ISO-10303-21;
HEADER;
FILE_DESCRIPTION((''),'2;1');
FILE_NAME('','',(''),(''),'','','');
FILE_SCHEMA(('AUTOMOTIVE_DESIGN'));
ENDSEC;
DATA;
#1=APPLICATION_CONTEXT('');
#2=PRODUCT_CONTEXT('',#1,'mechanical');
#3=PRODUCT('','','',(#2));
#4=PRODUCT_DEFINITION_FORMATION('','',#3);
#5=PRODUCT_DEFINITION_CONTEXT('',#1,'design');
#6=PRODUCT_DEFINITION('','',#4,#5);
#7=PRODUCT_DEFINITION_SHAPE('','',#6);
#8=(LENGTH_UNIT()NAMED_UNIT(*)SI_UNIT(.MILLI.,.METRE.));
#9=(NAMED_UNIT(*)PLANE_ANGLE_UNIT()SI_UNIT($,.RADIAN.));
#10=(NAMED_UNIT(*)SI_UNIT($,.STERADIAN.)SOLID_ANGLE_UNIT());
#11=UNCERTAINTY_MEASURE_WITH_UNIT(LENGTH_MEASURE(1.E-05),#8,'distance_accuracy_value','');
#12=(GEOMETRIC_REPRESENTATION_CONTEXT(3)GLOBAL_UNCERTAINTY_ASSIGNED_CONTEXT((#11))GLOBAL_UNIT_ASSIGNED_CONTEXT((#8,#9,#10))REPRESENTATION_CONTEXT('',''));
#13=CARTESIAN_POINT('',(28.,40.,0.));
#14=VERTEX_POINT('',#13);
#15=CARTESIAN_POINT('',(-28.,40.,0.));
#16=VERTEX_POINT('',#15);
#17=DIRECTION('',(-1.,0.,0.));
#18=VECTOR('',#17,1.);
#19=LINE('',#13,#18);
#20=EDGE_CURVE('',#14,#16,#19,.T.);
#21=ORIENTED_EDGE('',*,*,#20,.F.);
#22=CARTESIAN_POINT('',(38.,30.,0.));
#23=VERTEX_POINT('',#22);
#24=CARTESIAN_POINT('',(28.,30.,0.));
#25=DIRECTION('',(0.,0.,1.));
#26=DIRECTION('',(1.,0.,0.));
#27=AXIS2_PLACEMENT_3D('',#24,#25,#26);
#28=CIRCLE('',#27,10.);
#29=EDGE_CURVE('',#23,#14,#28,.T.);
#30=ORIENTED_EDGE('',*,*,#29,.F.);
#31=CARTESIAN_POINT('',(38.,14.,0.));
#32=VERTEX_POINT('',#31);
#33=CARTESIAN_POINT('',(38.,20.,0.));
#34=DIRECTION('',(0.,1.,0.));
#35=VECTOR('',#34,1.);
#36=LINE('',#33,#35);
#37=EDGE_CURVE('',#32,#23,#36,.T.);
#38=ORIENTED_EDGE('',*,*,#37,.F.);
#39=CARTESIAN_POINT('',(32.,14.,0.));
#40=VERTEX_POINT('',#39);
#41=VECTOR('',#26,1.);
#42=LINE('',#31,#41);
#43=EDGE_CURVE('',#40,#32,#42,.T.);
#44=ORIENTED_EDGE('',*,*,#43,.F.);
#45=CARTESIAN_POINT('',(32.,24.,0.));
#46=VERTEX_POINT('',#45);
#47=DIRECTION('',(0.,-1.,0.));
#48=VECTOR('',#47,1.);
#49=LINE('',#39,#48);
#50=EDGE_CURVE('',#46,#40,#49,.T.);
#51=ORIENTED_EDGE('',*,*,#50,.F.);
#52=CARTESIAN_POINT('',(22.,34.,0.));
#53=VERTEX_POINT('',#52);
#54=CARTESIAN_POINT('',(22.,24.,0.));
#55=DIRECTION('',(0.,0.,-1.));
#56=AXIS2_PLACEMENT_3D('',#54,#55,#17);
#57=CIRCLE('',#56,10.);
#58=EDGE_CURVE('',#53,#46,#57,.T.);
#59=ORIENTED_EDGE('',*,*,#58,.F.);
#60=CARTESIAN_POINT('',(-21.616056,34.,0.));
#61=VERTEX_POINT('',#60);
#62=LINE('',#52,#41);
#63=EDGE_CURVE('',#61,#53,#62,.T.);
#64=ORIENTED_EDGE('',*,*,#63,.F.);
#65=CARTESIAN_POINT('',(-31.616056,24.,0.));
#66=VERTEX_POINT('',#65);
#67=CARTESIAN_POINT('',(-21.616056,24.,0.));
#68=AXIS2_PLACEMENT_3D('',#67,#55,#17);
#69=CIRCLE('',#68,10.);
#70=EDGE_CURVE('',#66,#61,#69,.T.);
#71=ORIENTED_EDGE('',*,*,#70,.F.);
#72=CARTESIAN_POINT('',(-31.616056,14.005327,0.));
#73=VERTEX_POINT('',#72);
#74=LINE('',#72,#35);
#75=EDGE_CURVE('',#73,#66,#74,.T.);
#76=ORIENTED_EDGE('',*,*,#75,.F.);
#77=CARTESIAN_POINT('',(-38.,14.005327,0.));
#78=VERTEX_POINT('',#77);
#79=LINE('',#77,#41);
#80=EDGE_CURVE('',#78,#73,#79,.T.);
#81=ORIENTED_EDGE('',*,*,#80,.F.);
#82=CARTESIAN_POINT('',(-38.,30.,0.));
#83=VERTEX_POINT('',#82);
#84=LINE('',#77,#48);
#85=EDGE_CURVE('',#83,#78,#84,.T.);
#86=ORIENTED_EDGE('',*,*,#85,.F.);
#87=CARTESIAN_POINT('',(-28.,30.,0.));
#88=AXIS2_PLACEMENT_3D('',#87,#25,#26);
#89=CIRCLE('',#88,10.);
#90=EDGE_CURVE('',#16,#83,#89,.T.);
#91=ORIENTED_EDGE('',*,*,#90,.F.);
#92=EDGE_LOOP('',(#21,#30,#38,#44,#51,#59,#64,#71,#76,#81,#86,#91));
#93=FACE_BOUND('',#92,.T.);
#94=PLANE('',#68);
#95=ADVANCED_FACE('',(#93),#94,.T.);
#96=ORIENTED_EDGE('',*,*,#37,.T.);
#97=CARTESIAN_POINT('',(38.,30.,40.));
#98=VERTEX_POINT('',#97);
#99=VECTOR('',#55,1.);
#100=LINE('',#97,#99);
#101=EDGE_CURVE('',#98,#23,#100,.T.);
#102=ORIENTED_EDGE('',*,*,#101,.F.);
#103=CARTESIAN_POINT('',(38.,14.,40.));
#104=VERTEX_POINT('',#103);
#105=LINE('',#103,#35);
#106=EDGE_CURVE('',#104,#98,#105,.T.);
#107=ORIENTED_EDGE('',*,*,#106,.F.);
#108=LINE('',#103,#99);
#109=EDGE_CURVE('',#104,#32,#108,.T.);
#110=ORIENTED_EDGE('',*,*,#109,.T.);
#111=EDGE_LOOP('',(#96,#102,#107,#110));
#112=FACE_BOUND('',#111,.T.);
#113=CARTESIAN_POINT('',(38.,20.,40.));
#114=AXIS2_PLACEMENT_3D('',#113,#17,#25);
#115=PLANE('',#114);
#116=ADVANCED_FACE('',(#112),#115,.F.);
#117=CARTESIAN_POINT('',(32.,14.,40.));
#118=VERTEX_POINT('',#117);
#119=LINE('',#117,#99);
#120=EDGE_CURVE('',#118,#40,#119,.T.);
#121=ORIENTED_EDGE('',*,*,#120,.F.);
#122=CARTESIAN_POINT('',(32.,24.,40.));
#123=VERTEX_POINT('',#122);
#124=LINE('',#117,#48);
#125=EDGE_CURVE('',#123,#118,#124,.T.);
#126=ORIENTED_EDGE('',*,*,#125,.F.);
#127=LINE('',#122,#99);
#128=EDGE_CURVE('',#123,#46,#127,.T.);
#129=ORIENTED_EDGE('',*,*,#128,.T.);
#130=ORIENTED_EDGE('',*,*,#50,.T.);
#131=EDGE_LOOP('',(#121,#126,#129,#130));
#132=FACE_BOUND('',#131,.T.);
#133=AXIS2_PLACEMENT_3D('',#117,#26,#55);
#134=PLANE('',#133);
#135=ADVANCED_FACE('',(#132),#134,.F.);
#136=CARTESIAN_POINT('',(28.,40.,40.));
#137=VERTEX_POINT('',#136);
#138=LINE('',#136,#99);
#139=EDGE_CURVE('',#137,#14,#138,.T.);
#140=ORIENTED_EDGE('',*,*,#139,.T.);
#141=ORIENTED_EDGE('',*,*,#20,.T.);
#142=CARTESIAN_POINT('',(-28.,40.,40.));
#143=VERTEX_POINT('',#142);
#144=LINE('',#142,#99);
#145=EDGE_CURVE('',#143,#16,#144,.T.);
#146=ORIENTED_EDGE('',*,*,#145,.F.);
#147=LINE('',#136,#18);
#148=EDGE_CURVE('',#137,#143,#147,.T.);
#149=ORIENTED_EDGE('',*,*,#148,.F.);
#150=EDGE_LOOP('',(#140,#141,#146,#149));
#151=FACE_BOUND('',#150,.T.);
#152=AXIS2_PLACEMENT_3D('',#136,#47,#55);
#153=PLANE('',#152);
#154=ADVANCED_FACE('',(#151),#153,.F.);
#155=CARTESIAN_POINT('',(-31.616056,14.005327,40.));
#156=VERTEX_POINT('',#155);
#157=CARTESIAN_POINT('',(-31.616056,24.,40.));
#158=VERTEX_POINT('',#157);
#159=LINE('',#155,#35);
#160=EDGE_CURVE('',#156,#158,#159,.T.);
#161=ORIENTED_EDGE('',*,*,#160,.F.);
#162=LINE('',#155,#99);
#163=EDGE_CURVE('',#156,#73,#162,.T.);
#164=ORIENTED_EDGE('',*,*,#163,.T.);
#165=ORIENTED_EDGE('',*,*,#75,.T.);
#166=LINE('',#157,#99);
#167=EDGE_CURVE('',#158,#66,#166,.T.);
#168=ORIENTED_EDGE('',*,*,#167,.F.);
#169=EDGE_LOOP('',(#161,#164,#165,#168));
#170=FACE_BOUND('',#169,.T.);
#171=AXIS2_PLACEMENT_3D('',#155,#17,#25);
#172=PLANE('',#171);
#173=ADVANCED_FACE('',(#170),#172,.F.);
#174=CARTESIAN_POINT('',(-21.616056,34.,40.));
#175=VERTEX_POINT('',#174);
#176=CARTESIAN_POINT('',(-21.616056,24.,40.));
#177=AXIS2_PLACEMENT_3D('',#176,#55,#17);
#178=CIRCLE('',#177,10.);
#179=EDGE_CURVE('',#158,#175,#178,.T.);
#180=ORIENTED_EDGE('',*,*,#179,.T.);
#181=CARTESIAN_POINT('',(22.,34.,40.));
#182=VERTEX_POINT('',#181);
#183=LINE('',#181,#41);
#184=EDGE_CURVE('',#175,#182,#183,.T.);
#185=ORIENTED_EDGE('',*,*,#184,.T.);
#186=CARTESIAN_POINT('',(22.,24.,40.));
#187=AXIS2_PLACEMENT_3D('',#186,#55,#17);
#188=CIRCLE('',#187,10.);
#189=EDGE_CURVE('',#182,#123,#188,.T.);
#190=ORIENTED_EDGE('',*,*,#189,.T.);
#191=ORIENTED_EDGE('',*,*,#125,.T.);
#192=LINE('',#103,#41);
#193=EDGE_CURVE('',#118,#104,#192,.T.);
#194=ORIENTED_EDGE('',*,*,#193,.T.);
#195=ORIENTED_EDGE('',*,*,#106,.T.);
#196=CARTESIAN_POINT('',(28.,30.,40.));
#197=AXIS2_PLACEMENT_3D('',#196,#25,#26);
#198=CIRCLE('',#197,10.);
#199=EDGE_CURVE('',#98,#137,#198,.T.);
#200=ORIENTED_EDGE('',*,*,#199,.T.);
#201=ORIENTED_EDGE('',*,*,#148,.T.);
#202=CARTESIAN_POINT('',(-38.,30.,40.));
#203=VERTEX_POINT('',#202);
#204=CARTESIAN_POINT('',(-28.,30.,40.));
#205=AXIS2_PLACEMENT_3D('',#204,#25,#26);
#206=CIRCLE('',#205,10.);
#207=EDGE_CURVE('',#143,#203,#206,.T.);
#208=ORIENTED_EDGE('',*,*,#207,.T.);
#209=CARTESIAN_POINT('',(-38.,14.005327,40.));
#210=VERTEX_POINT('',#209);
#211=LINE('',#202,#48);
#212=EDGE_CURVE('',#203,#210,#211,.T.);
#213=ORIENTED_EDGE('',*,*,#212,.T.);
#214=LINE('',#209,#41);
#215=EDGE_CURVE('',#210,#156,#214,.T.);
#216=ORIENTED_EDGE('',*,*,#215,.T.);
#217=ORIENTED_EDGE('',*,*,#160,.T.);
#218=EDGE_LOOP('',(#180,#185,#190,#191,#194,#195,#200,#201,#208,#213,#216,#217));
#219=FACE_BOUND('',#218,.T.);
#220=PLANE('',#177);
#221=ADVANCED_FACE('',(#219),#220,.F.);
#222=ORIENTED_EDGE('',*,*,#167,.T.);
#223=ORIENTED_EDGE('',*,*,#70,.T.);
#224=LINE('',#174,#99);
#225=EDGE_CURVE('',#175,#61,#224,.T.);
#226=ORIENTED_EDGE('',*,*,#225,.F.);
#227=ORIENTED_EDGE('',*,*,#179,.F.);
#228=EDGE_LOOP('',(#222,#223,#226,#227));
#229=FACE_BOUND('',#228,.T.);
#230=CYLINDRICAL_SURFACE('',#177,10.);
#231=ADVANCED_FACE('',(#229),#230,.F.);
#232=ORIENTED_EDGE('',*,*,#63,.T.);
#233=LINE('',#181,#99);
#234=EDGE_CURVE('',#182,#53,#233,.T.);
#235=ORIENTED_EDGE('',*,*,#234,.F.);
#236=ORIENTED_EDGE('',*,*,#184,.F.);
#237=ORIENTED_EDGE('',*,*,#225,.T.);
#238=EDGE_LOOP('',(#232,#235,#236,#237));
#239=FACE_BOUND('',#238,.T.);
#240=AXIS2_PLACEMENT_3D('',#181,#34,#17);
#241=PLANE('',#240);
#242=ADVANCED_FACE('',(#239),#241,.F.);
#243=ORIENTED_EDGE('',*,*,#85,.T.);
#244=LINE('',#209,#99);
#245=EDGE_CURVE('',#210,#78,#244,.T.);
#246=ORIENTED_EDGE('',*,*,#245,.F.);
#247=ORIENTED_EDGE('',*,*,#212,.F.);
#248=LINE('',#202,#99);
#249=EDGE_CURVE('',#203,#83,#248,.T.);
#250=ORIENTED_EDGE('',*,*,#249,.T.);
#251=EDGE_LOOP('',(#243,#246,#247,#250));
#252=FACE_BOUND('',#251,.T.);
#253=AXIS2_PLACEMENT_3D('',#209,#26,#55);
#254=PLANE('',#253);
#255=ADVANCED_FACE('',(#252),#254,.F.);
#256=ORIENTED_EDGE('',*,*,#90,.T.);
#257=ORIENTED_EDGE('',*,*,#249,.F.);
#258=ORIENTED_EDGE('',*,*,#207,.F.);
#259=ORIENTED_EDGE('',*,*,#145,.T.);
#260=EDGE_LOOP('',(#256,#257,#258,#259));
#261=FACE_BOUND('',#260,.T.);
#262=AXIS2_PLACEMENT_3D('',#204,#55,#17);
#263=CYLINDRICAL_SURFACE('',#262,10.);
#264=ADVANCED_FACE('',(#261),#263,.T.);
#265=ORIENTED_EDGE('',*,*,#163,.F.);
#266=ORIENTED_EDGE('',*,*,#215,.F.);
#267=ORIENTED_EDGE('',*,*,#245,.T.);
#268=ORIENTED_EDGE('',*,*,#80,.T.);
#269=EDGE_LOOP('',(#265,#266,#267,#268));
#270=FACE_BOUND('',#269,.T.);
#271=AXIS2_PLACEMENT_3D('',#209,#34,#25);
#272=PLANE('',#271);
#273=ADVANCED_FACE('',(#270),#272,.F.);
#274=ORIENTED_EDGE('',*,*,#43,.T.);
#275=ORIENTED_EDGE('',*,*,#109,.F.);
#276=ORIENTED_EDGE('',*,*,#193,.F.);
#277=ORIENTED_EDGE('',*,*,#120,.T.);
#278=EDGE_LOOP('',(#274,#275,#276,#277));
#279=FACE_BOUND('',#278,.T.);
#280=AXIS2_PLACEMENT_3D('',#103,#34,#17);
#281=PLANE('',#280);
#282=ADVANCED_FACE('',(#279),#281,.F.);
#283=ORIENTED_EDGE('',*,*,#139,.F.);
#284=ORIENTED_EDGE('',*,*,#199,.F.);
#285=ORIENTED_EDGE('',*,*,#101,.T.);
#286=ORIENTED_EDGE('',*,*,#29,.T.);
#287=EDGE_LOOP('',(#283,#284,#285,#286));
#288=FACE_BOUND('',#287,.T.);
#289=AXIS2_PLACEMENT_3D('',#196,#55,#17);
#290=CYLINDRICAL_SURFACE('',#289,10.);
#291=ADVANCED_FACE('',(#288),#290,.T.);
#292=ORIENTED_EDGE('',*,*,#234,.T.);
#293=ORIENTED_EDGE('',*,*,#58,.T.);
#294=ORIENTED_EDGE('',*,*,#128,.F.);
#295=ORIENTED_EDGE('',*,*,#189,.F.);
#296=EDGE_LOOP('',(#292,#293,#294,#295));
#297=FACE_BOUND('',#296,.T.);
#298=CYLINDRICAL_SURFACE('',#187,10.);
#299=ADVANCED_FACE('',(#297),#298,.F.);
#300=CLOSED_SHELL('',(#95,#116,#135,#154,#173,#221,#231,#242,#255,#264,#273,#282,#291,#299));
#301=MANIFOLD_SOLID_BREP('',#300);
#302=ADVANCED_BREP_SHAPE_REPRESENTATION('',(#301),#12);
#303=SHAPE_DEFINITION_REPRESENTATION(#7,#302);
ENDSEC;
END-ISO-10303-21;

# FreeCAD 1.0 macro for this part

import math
import FreeCAD as App
import Part
import Sketcher

doc = App.newDocument("Part")
body = doc.addObject("PartDesign::Body", "Body")

sketch1 = doc.addObject("Sketcher::SketchObject", "Sketch")
body.addObject(sketch1)
sketch1.AttachmentSupport = (doc.XY_Plane, [""])
sketch1.MapMode = "FlatFace"
sketch1.addGeometry([
    Part.LineSegment(App.Vector(-38, 30, 0), App.Vector(-38, 14, 0)),
    Part.LineSegment(App.Vector(-38, 14, 0), App.Vector(-32, 14, 0)),
    Part.LineSegment(App.Vector(-32, 14, 0), App.Vector(-32, 24, 0)),
    Part.ArcOfCircle(Part.Circle(App.Vector(-22, 24, 0), App.Vector(0, 0, 1), 10), math.radians(90), math.radians(180)),
    Part.LineSegment(App.Vector(-22, 34, 0), App.Vector(22, 34, 0)),
    Part.ArcOfCircle(Part.Circle(App.Vector(22, 24, 0), App.Vector(0, 0, 1), 10), math.radians(0), math.radians(90)),
    Part.LineSegment(App.Vector(32, 24, 0), App.Vector(32, 14, 0)),
    Part.LineSegment(App.Vector(32, 14, 0), App.Vector(38, 14, 0)),
    Part.LineSegment(App.Vector(38, 14, 0), App.Vector(38, 30, 0)),
    Part.ArcOfCircle(Part.Circle(App.Vector(28, 30, 0), App.Vector(0, 0, 1), 10), math.radians(0), math.radians(90)),
    Part.LineSegment(App.Vector(28, 40, 0), App.Vector(-28, 40, 0)),
    Part.ArcOfCircle(Part.Circle(App.Vector(-28, 30, 0), App.Vector(0, 0, 1), 10), math.radians(90), math.radians(180)),
], False)
sketch1.addConstraint([
    Sketcher.Constraint("Coincident", 0, 2, 1, 1),
    Sketcher.Constraint("Coincident", 1, 2, 2, 1),
    Sketcher.Constraint("Tangent", 2, 2, 3, 2),
    Sketcher.Constraint("Tangent", 3, 1, 4, 1),
    Sketcher.Constraint("Tangent", 4, 2, 5, 2),
    Sketcher.Constraint("Tangent", 5, 1, 6, 1),
    Sketcher.Constraint("Coincident", 6, 2, 7, 1),
    Sketcher.Constraint("Coincident", 7, 2, 8, 1),
    Sketcher.Constraint("Tangent", 8, 2, 9, 1),
    Sketcher.Constraint("Tangent", 9, 2, 10, 1),
    Sketcher.Constraint("Tangent", 10, 2, 11, 1),
    Sketcher.Constraint("Tangent", 11, 2, 0, 1),
    Sketcher.Constraint("Vertical", 0),
    Sketcher.Constraint("Horizontal", 1),
    Sketcher.Constraint("Vertical", 2),
    Sketcher.Constraint("Horizontal", 4),
    Sketcher.Constraint("Vertical", 6),
    Sketcher.Constraint("Horizontal", 7),
    Sketcher.Constraint("Vertical", 8),
    Sketcher.Constraint("Horizontal", 10),
    Sketcher.Constraint("Equal", 3, 5),
    Sketcher.Constraint("Equal", 5, 9),
    Sketcher.Constraint("Equal", 9, 11),
    Sketcher.Constraint("Radius", 3, 10.0),
    Sketcher.Constraint("DistanceX", 7, 1, 7, 2, 6.0),
    Sketcher.Constraint("DistanceX", 10, 2, 10, 1, 56.0),
    Sketcher.Constraint("DistanceY", 6, 2, 6, 1, 10.0),
    Sketcher.Constraint("DistanceY", 8, 1, 8, 2, 16.0),
    Sketcher.Constraint("DistanceY", -1, 1, 3, 3, 24.0),
    Sketcher.Constraint("DistanceX", -1, 1, 5, 3, 22.0),
    Sketcher.Constraint("DistanceX", 1, 1, 1, 2, 6.383944),
    Sketcher.Constraint("DistanceY", 0, 2, 0, 1, 15.994673),
])
pad1 = doc.addObject("PartDesign::Pad", "Pad")
body.addObject(pad1)
pad1.Profile = sketch1
pad1.Length = 40

doc.recompute()
